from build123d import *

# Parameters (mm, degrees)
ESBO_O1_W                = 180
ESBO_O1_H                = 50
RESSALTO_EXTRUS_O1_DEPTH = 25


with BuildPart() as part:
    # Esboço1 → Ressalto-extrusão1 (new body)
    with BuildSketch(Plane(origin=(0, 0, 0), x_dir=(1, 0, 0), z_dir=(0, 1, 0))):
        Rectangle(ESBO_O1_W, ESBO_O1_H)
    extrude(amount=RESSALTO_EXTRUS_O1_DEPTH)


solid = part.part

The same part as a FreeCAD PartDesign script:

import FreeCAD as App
import Part
import Sketcher
Q = App.Units.Quantity


def add_polygon(sketch, points):
    """Adds a closed chain of lines whose ends are joined by coincident constraints."""
    first, n = sketch.GeometryCount, len(points)
    for a, b in zip(points, points[1:] + points[:1]):
        sketch.addGeometry(Part.LineSegment(App.Vector(*a, 0), App.Vector(*b, 0)), False)
    for i in range(n):
        sketch.addConstraint(Sketcher.Constraint("Coincident", first + i, 2, first + (i + 1) % n, 1))

doc = App.newDocument("Part")
body = doc.addObject("PartDesign::Body", "Body")

# Sketch on XZ plane
sketch1 = body.newObject("Sketcher::SketchObject", "Sketch")
sketch1.AttachmentSupport = (doc.getObject("XZ_Plane"), [""])
sketch1.MapMode = "FlatFace"
add_polygon(sketch1, [(-90, -25), (-90, 25), (90, 25), (90, -25)])  # lines 0-3
sketch1.addConstraint([
    Sketcher.Constraint("Vertical", 0),
    Sketcher.Constraint("Horizontal", 1),
    Sketcher.Constraint("Vertical", 2),
    Sketcher.Constraint("Horizontal", 3),
    Sketcher.Constraint("Symmetric", 0, 2, 2, 2, -1, 1),
    Sketcher.Constraint("DistanceX", 1, 1, 1, 2, Q("180 mm")),
    Sketcher.Constraint("DistanceY", 0, 1, 0, 2, Q("50 mm")),
])
pad1 = body.newObject("PartDesign::Pad", "Pad")
pad1.Profile = sketch1
pad1.Length = 25
pad1.Reversed = True

doc.recompute()
